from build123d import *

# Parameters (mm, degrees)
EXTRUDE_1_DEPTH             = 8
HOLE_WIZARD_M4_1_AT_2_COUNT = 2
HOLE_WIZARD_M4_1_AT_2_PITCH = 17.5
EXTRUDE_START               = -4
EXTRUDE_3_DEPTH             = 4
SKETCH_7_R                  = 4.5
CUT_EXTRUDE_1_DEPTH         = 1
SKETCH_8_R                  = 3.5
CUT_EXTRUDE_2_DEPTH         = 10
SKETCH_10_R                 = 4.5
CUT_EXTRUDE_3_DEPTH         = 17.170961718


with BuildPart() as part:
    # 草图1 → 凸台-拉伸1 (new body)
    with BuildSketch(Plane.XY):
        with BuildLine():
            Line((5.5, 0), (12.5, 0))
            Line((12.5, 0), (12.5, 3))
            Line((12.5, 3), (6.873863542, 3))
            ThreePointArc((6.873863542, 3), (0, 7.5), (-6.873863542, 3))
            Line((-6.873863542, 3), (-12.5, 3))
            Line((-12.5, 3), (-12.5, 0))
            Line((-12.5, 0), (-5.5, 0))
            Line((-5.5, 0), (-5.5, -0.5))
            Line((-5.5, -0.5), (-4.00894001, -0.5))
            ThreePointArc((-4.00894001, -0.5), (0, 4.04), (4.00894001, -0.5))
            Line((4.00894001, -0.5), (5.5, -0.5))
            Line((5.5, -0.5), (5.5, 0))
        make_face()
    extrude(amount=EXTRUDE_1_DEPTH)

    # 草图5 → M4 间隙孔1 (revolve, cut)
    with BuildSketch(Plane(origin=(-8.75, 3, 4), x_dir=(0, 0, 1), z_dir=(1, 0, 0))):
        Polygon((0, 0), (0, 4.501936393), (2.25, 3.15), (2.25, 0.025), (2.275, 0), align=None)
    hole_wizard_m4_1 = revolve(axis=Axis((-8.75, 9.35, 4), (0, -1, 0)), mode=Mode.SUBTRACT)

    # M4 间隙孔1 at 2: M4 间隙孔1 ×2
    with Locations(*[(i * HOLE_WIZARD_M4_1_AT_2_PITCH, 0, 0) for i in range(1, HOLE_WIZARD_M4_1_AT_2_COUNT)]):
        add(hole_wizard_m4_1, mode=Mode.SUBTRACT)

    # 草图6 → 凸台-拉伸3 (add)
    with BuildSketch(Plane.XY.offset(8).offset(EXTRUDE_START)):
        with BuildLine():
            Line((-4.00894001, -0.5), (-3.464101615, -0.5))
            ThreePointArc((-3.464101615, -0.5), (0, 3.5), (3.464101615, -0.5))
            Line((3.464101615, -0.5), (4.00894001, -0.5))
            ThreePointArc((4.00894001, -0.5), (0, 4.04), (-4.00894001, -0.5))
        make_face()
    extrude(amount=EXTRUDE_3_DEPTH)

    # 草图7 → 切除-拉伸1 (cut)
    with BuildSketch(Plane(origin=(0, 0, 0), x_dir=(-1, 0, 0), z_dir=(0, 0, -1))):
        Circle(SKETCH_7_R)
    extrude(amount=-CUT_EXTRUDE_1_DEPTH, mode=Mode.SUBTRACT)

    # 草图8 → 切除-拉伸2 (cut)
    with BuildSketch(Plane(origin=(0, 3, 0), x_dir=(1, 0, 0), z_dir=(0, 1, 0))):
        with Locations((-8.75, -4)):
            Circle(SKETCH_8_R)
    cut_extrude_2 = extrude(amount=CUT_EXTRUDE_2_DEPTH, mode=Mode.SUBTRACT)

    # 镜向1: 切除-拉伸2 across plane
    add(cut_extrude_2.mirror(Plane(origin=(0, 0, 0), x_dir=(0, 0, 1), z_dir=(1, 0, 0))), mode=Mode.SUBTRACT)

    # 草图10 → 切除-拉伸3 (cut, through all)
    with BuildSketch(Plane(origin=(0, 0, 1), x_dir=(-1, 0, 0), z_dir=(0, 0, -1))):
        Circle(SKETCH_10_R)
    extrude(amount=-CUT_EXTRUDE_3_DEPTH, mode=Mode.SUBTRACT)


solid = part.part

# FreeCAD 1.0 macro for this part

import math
import FreeCAD as App
import Part
import Sketcher
Q = App.Units.Quantity


def add_polygon(sketch, points):
    """Adds a closed chain of lines whose ends are joined by coincident constraints."""
    first, n = sketch.GeometryCount, len(points)
    for a, b in zip(points, points[1:] + points[:1]):
        sketch.addGeometry(Part.LineSegment(App.Vector(*a, 0), App.Vector(*b, 0)), False)
    for i in range(n):
        sketch.addConstraint(Sketcher.Constraint("Coincident", first + i, 2, first + (i + 1) % n, 1))

doc = App.newDocument("Part")
body = doc.addObject("PartDesign::Body", "Body")

sketch1 = body.newObject("Sketcher::SketchObject", "Sketch")
sketch1.AttachmentSupport = (doc.getObject("XY_Plane"), [""])
sketch1.MapMode = "FlatFace"
sketch1.addGeometry([
    Part.LineSegment(App.Vector(5.5, 0, 0), App.Vector(12.5, 0, 0)),
    Part.LineSegment(App.Vector(12.5, 0, 0), App.Vector(12.5, 3, 0)),
    Part.LineSegment(App.Vector(12.5, 3, 0), App.Vector(6.873864, 3, 0)),
    Part.ArcOfCircle(Part.Circle(App.Vector(0, 0, 0), App.Vector(0, 0, 1), 7.5), math.radians(23.578178), math.radians(156.421822)),
    Part.LineSegment(App.Vector(-6.873864, 3, 0), App.Vector(-12.5, 3, 0)),
    Part.LineSegment(App.Vector(-12.5, 3, 0), App.Vector(-12.5, 0, 0)),
    Part.LineSegment(App.Vector(-12.5, 0, 0), App.Vector(-5.5, 0, 0)),
    Part.LineSegment(App.Vector(-5.5, 0, 0), App.Vector(-5.5, -0.5, 0)),
    Part.LineSegment(App.Vector(-5.5, -0.5, 0), App.Vector(-4.00894, -0.5, 0)),
    Part.ArcOfCircle(Part.Circle(App.Vector(0, 0, 0), App.Vector(0, 0, 1), 4.04), math.radians(-7.10929), math.radians(187.10929)),
    Part.LineSegment(App.Vector(4.00894, -0.5, 0), App.Vector(5.5, -0.5, 0)),
    Part.LineSegment(App.Vector(5.5, -0.5, 0), App.Vector(5.5, 0, 0)),
], False)
sketch1.addConstraint([
    Sketcher.Constraint("Coincident", 0, 2, 1, 1),
    Sketcher.Constraint("Coincident", 1, 2, 2, 1),
    Sketcher.Constraint("Coincident", 2, 2, 3, 1),
    Sketcher.Constraint("Coincident", 3, 2, 4, 1),
    Sketcher.Constraint("Coincident", 4, 2, 5, 1),
    Sketcher.Constraint("Coincident", 5, 2, 6, 1),
    Sketcher.Constraint("Coincident", 6, 2, 7, 1),
    Sketcher.Constraint("Coincident", 7, 2, 8, 1),
    Sketcher.Constraint("Coincident", 8, 2, 9, 2),
    Sketcher.Constraint("Coincident", 9, 1, 10, 1),
    Sketcher.Constraint("Coincident", 10, 2, 11, 1),
    Sketcher.Constraint("Coincident", 11, 2, 0, 1),
    Sketcher.Constraint("Horizontal", 0),
    Sketcher.Constraint("Vertical", 1),
    Sketcher.Constraint("Horizontal", 2),
    Sketcher.Constraint("Horizontal", 4),
    Sketcher.Constraint("Vertical", 5),
    Sketcher.Constraint("Horizontal", 6),
    Sketcher.Constraint("Vertical", 7),
    Sketcher.Constraint("Horizontal", 8),
    Sketcher.Constraint("Horizontal", 10),
    Sketcher.Constraint("Vertical", 11),
    Sketcher.Constraint("Coincident", 3, 3, -1, 1),
    Sketcher.Constraint("Coincident", 9, 3, -1, 1),
    Sketcher.Constraint("Symmetric", 0, 2, 5, 2, -1, 1),
    Sketcher.Constraint("Symmetric", 7, 2, 10, 2, -2),
    Sketcher.Constraint("PointOnObject", 0, 2, -1),
    Sketcher.Constraint("Horizontal", 2, 2, 3, 2),
    Sketcher.Constraint("Radius", 3, 7.5),
    Sketcher.Constraint("DistanceX", 0, 1, 0, 2, 7.0),
    Sketcher.Constraint("DistanceY", 1, 1, 1, 2, 3.0),
    Sketcher.Constraint("Radius", 9, 4.04),
    Sketcher.Constraint("DistanceY", 7, 2, 7, 1, 0.5),
    Sketcher.Constraint("DistanceX", 4, 2, 1, 2, 25.0),
])
pad1 = body.newObject("PartDesign::Pad", "Pad")
pad1.Profile = sketch1
pad1.Length = 8

sketch2 = body.newObject("Sketcher::SketchObject", "Sketch001")
sketch2.AttachmentSupport = (doc.getObject("YZ_Plane"), [""])
sketch2.MapMode = "FlatFace"
sketch2.AttachmentOffset = App.Placement(App.Vector(0, 0, -8.75), App.Rotation())
add_polygon(sketch2, [(-1.501936, 4), (3, 4), (3, 6.275), (2.975, 6.25), (-0.15, 6.25)])
sketch2.addGeometry(Part.LineSegment(App.Vector(3, 4, 0), App.Vector(-1.501936, 4, 0)), True)
sketch2.addConstraint([
    Sketcher.Constraint("Horizontal", 0),
    Sketcher.Constraint("Vertical", 1),
    Sketcher.Constraint("Horizontal", 3),
    Sketcher.Constraint("Horizontal", 5),
    Sketcher.Constraint("Coincident", 5, 1, 0, 2),
    Sketcher.Constraint("Equal", 0, 5),
    Sketcher.Constraint("Angle", 2, Q("-135 deg")),
    Sketcher.Constraint("Angle", 4, Q("-121 deg")),
    Sketcher.Constraint("DistanceX", -1, 1, 0, 2, 3.0),
    Sketcher.Constraint("DistanceY", -1, 1, 0, 2, 4.0),
    Sketcher.Constraint("DistanceX", 3, 2, 3, 1, 3.125),
    Sketcher.Constraint("DistanceY", 1, 1, 1, 2, 2.275),
    Sketcher.Constraint("DistanceY", -1, 1, 2, 2, 6.25),
])
groove = body.newObject("PartDesign::Groove", "Groove")
groove.Profile = sketch2
groove.ReferenceAxis = (sketch2, ["Axis0"])
groove.Angle = 360
doc.recompute()

linearpattern = body.newObject("PartDesign::LinearPattern", "LinearPattern")
linearpattern.Originals = [groove]
linearpattern.Direction = (doc.getObject("X_Axis"), [""])
linearpattern.Mode = "offset"
linearpattern.Offset = 17.5
linearpattern.Occurrences = 2
body.Tip = linearpattern

sketch3 = body.newObject("Sketcher::SketchObject", "Sketch002")
sketch3.AttachmentSupport = (doc.getObject("XY_Plane"), [""])
sketch3.MapMode = "FlatFace"
sketch3.AttachmentOffset = App.Placement(App.Vector(0, 0, 4), App.Rotation())
sketch3.addGeometry([
    Part.LineSegment(App.Vector(-4.00894, -0.5, 0), App.Vector(-3.464102, -0.5, 0)),
    Part.ArcOfCircle(Part.Circle(App.Vector(0, 0, 0), App.Vector(0, 0, 1), 3.5), math.radians(-8.213211), math.radians(188.213211)),
    Part.LineSegment(App.Vector(3.464102, -0.5, 0), App.Vector(4.00894, -0.5, 0)),
    Part.ArcOfCircle(Part.Circle(App.Vector(0, 0, 0), App.Vector(0, 0, 1), 4.04), math.radians(-7.10929), math.radians(187.10929)),
], False)
sketch3.addConstraint([
    Sketcher.Constraint("Coincident", 0, 2, 1, 2),
    Sketcher.Constraint("Coincident", 1, 1, 2, 1),
    Sketcher.Constraint("Coincident", 2, 2, 3, 1),
    Sketcher.Constraint("Coincident", 3, 2, 0, 1),
    Sketcher.Constraint("Horizontal", 0),
    Sketcher.Constraint("Horizontal", 2),
    Sketcher.Constraint("Coincident", 1, 3, -1, 1),
    Sketcher.Constraint("Coincident", 3, 3, -1, 1),
    Sketcher.Constraint("Horizontal", 0, 2, 1, 1),
    Sketcher.Constraint("Radius", 1, 3.5),
    Sketcher.Constraint("Radius", 3, 4.04),
    Sketcher.Constraint("DistanceY", 0, 2, -1, 1, 0.5),
])
pad2 = body.newObject("PartDesign::Pad", "Pad001")
pad2.Profile = sketch3
pad2.Length = 4

sketch4 = body.newObject("Sketcher::SketchObject", "Sketch003")
sketch4.AttachmentSupport = (doc.getObject("XY_Plane"), [""])
sketch4.MapMode = "FlatFace"
sketch4.addGeometry(Part.Circle(App.Vector(0, 0, 0), App.Vector(0, 0, 1), 4.5), False)
sketch4.addConstraint([
    Sketcher.Constraint("Coincident", 0, 3, -1, 1),
    Sketcher.Constraint("Diameter", 0, 9.0),
])
pocket1 = body.newObject("PartDesign::Pocket", "Pocket")
pocket1.Profile = sketch4
pocket1.Length = 1
pocket1.Reversed = True

sketch5 = body.newObject("Sketcher::SketchObject", "Sketch004")
sketch5.AttachmentSupport = (doc.getObject("XZ_Plane"), [""])
sketch5.MapMode = "FlatFace"
sketch5.AttachmentOffset = App.Placement(App.Vector(0, 0, -3), App.Rotation())
sketch5.addGeometry(Part.Circle(App.Vector(-8.75, 4, 0), App.Vector(0, 0, 1), 3.5), False)
sketch5.addConstraint([
    Sketcher.Constraint("Diameter", 0, 7.0),
    Sketcher.Constraint("DistanceY", -1, 1, 0, 3, 4.0),
    Sketcher.Constraint("DistanceX", 0, 3, -1, 1, 8.75),
])
pocket2 = body.newObject("PartDesign::Pocket", "Pocket001")
pocket2.Profile = sketch5
pocket2.Length = 10
doc.recompute()

mirrored = body.newObject("PartDesign::Mirrored", "Mirrored")
mirrored.Originals = [pocket2]
mirrored.MirrorPlane = (doc.getObject("YZ_Plane"), [""])
body.Tip = mirrored

sketch6 = body.newObject("Sketcher::SketchObject", "Sketch005")
sketch6.AttachmentSupport = (doc.getObject("XY_Plane"), [""])
sketch6.MapMode = "FlatFace"
sketch6.AttachmentOffset = App.Placement(App.Vector(0, 0, 1), App.Rotation())
sketch6.addGeometry(Part.Circle(App.Vector(0, 0, 0), App.Vector(0, 0, 1), 4.5), False)
sketch6.addConstraint([
    Sketcher.Constraint("Coincident", 0, 3, -1, 1),
    Sketcher.Constraint("Diameter", 0, 9.0),
])
pocket3 = body.newObject("PartDesign::Pocket", "Pocket002")
pocket3.Profile = sketch6
pocket3.Type = "ThroughAll"
pocket3.Reversed = True

doc.recompute()
